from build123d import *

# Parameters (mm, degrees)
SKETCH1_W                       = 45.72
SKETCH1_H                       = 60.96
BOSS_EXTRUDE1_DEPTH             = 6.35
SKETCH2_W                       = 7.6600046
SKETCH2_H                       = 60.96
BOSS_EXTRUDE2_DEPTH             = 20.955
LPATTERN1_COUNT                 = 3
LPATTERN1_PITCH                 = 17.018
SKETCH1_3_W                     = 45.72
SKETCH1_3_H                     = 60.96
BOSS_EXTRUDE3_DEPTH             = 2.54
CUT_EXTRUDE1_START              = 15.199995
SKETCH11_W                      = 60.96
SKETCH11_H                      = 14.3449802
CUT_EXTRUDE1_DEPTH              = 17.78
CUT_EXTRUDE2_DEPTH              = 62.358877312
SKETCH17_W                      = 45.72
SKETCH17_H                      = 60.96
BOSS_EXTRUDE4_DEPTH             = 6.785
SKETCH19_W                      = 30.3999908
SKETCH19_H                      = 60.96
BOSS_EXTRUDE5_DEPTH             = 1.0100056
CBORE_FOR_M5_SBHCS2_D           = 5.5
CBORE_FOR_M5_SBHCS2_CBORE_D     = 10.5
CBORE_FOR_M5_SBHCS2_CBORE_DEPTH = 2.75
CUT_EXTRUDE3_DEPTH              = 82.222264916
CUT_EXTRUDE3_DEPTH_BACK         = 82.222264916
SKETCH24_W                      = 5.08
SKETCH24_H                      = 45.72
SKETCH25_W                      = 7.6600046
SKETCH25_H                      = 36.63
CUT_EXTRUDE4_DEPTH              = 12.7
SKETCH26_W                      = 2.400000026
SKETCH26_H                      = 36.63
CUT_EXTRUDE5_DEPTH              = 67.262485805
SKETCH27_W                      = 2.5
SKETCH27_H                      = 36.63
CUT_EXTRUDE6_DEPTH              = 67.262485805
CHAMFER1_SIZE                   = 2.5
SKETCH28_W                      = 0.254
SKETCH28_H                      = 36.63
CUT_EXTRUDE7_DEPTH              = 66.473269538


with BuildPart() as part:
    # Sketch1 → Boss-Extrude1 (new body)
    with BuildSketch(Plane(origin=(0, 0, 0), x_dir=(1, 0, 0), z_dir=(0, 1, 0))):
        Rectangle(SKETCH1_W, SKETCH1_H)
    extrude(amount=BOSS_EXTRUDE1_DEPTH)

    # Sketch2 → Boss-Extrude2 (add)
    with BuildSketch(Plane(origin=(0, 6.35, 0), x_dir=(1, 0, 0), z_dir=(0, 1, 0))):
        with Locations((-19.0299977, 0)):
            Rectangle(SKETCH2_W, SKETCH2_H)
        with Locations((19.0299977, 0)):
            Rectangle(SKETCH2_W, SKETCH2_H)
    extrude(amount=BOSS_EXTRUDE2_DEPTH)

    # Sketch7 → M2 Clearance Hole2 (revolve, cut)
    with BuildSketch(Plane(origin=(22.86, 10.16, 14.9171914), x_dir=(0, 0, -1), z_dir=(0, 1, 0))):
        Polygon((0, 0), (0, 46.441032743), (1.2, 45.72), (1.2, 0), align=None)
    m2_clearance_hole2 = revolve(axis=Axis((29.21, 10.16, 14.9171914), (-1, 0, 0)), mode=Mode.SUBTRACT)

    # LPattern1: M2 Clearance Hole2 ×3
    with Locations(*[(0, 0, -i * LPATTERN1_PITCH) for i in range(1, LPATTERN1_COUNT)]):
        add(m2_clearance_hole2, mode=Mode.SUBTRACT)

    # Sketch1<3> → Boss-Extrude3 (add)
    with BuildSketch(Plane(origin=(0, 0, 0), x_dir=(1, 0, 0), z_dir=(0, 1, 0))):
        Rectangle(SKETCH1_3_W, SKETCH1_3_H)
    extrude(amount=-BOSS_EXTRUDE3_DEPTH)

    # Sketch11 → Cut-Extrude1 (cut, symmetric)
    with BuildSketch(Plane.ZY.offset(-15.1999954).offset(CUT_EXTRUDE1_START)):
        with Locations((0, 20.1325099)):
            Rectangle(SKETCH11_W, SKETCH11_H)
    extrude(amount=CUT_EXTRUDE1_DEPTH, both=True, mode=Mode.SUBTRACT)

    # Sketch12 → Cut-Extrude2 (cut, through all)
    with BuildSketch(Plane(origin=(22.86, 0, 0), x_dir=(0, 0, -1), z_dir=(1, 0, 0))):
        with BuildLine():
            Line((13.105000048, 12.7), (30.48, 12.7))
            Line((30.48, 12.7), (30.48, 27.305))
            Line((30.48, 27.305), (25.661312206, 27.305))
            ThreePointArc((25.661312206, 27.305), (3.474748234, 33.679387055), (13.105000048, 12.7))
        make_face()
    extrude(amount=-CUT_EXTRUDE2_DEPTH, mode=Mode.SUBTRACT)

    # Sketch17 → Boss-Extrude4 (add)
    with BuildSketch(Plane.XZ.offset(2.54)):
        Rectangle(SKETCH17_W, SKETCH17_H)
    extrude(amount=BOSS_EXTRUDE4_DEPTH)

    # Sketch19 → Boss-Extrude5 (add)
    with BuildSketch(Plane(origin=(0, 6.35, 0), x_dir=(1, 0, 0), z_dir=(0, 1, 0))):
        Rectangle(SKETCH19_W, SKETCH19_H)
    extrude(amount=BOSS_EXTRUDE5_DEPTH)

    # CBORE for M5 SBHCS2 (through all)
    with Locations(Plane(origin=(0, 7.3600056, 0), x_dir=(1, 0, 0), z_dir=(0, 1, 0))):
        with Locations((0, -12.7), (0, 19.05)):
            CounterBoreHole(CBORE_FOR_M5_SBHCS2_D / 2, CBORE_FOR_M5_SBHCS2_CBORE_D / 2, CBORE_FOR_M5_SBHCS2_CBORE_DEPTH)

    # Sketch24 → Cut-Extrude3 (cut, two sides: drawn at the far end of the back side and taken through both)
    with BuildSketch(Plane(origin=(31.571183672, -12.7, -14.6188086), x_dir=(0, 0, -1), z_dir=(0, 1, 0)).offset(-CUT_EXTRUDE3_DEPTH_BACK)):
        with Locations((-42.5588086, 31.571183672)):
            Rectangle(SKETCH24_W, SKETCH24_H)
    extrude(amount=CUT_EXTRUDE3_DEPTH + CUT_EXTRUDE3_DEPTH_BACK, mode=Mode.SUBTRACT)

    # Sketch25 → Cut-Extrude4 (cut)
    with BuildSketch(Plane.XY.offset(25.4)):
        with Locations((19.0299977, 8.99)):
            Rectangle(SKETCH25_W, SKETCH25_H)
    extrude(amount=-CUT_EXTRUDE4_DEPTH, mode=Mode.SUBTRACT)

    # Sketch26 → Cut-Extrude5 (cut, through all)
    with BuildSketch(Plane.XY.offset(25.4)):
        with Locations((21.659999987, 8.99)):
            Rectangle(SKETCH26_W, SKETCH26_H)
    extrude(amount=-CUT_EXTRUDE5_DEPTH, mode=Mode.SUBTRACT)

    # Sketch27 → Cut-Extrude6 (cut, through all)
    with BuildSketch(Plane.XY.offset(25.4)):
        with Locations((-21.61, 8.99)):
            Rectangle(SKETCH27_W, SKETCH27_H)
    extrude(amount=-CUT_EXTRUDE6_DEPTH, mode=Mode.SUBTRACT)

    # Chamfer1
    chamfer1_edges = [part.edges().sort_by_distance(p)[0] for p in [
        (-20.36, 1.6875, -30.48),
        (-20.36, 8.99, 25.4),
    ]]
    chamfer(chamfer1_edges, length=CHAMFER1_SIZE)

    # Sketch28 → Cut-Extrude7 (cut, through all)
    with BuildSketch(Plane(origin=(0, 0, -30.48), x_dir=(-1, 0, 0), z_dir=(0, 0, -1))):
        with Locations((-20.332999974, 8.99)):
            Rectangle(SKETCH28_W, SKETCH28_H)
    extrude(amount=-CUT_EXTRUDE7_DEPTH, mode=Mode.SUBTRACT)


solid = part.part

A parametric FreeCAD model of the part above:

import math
import FreeCAD as App
import Part
import Sketcher
from FreeCAD import Vector
Q = App.Units.Quantity


def edges_at(feature, points):
    """Names of the edges that pass closest to the given points."""
    edges = feature.Shape.Edges
    near = lambda p: min(range(len(edges)), key=lambda i: edges[i].distToShape(Part.Vertex(*p))[0])
    return sorted({f"Edge{near(p) + 1}" for p in points})


def add_polygon(sketch, points):
    """Adds a closed chain of lines whose ends are joined by coincident constraints."""
    first, n = sketch.GeometryCount, len(points)
    for a, b in zip(points, points[1:] + points[:1]):
        sketch.addGeometry(Part.LineSegment(App.Vector(*a, 0), App.Vector(*b, 0)), False)
    for i in range(n):
        sketch.addConstraint(Sketcher.Constraint("Coincident", first + i, 2, first + (i + 1) % n, 1))

doc = App.newDocument("Part")
params = doc.addObject("Spreadsheet::Sheet", "Params")
for row, (alias, value) in enumerate([
    ("sketch1_width", "1.8 in"),
    ("sketch1_height", "2.4 in"),
    ("pad1_length", "0.25 in"),
    ("sketch2_height", "2.4 in"),
    ("pad2_length", "0.825 in"),
    ("sketch3_width", "1.8 in"),
    ("groove_angle", "360 deg"),
    ("linearpattern_pitch", "0.67 in"),
    ("sketch4_width", "1.8 in"),
    ("sketch4_height", "2.4 in"),
    ("pad3_length", "0.1 in"),
    ("sketch5_height", "2.4 in"),
    ("pocket1_length", "1.4 in"),
    ("sketch6_radius", "0.5 in"),
    ("sketch6_width", "0.575 in"),
    ("sketch7_width", "1.8 in"),
    ("sketch7_height", "2.4 in"),
    ("pad4_length", "6.785 mm"),
    ("sketch8_height", "2.4 in"),
    ("pad5_length", "1.010006 mm"),
    ("hole_diameter", "5.5 mm"),
    ("hole_cbore_diameter", "10.5 mm"),
    ("hole_cbore_depth", "2.75 mm"),
    ("sketch10_width", "1.8 in"),
    ("sketch10_height", "0.2 in"),
    ("pocket4_length", "0.5 in"),
    ("chamfer_size", "2.5 mm"),
    ("sketch14_width", "0.01 in"),
], start=1):
    params.set(f"A{row}", alias)
    params.set(f"B{row}", "=" + value)
    params.setAlias(f"B{row}", alias)

body = doc.addObject("PartDesign::Body", "Body")

sketch1 = body.newObject("Sketcher::SketchObject", "Sketch")
sketch1.AttachmentSupport = (doc.getObject("XZ_Plane"), [""])
sketch1.MapMode = "FlatFace"
add_polygon(sketch1, [(-23, -30), (-23, 30), (23, 30), (23, -30)])
sketch1.addConstraint(Sketcher.Constraint("Vertical", 0))
sketch1.addConstraint(Sketcher.Constraint("Horizontal", 1))
sketch1.addConstraint(Sketcher.Constraint("Vertical", 2))
sketch1.addConstraint(Sketcher.Constraint("Horizontal", 3))
sketch1.addConstraint(Sketcher.Constraint("Symmetric", 0, 2, 2, 2, -1, 1))
sketch1.addConstraint(Sketcher.Constraint("DistanceX", 1, 1, 1, 2, Q("1.8 in")))
sketch1.addConstraint(Sketcher.Constraint("DistanceY", 0, 1, 0, 2, Q("2.4 in")))
sketch1.setExpression("Constraints[9]", "Params.sketch1_width")
sketch1.setExpression("Constraints[10]", "Params.sketch1_height")
pad1 = body.newObject("PartDesign::Pad", "Pad")
pad1.Profile = sketch1
pad1.setExpression("Length", "Params.pad1_length")
pad1.Reversed = True

sketch2 = body.newObject("Sketcher::SketchObject", "Sketch001")
sketch2.AttachmentSupport = (doc.getObject("XZ_Plane"), [""])
sketch2.MapMode = "FlatFace"
sketch2.AttachmentOffset = App.Placement(Vector(0, 0, -0.25 * 25.4), App.Rotation())
add_polygon(sketch2, [(-23, -30), (-23, 30), (-15, 30), (-15, -30)])
add_polygon(sketch2, [(15, -30), (15, 30), (23, 30), (23, -30)])
sketch2.addConstraint(Sketcher.Constraint("Vertical", 0))
sketch2.addConstraint(Sketcher.Constraint("Horizontal", 1))
sketch2.addConstraint(Sketcher.Constraint("Vertical", 2))
sketch2.addConstraint(Sketcher.Constraint("Horizontal", 3))
sketch2.addConstraint(Sketcher.Constraint("Vertical", 4))
sketch2.addConstraint(Sketcher.Constraint("Horizontal", 5))
sketch2.addConstraint(Sketcher.Constraint("Vertical", 6))
sketch2.addConstraint(Sketcher.Constraint("Horizontal", 7))
sketch2.addConstraint(Sketcher.Constraint("Symmetric", 2, 2, 4, 2, -1, 1))
sketch2.addConstraint(Sketcher.Constraint("Symmetric", 0, 2, 6, 2, -1, 1))
sketch2.addConstraint(Sketcher.Constraint("Horizontal", 1, 2, 4, 2))
sketch2.addConstraint(Sketcher.Constraint("DistanceY", 0, 1, 0, 2, Q("2.4 in")))
sketch2.addConstraint(Sketcher.Constraint("DistanceX", 0, 2, -1, 1, Q("0.9 in")))
sketch2.addConstraint(Sketcher.Constraint("DistanceX", 1, 1, 1, 2, 7.660005))
sketch2.setExpression("Constraints[19]", "Params.sketch2_height")
pad2 = body.newObject("PartDesign::Pad", "Pad001")
pad2.Profile = sketch2
pad2.setExpression("Length", "Params.pad2_length")
pad2.Reversed = True

sketch3 = body.newObject("Sketcher::SketchObject", "Sketch002")
sketch3.AttachmentSupport = (doc.getObject("XZ_Plane"), [""])
sketch3.MapMode = "FlatFace"
sketch3.AttachmentOffset = App.Placement(Vector(0, 0, -0.4 * 25.4), App.Rotation())
add_polygon(sketch3, [(-23.6, 14.9), (22.9, 14.9), (22.9, 13.7), (-22.9, 13.7)])
sketch3.addGeometry(Part.LineSegment(Vector(22.9, 14.9, 0), Vector(-23.6, 14.9, 0)), True)
sketch3.addConstraint(Sketcher.Constraint("Horizontal", 0))
sketch3.addConstraint(Sketcher.Constraint("Vertical", 1))
sketch3.addConstraint(Sketcher.Constraint("Horizontal", 2))
sketch3.addConstraint(Sketcher.Constraint("Horizontal", 4))
sketch3.addConstraint(Sketcher.Constraint("Coincident", 4, 1, 0, 2))
sketch3.addConstraint(Sketcher.Constraint("Equal", 0, 4))
sketch3.addConstraint(Sketcher.Constraint("DistanceX", 2, 2, 2, 1, Q("1.8 in")))
sketch3.addConstraint(Sketcher.Constraint("Angle", 3, Q("121 deg")))
sketch3.addConstraint(Sketcher.Constraint("DistanceX", -1, 1, 0, 2, Q("0.9 in")))
sketch3.addConstraint(Sketcher.Constraint("DistanceY", 1, 2, 1, 1, 1.2))
sketch3.addConstraint(Sketcher.Constraint("DistanceY", -1, 1, 0, 2, 14.917191))
sketch3.setExpression("Constraints[10]", "Params.sketch3_width")
groove = body.newObject("PartDesign::Groove", "Groove")
groove.Profile = sketch3
groove.ReferenceAxis = (sketch3, ["Axis0"])
groove.setExpression("Angle", "Params.groove_angle")
doc.recompute()

linearpattern = body.newObject("PartDesign::LinearPattern", "LinearPattern")
linearpattern.Originals = [groove]
linearpattern.Direction = (doc.getObject("Z_Axis"), [""])
linearpattern.Mode = "offset"
linearpattern.setExpression("Offset", "Params.linearpattern_pitch")
linearpattern.Occurrences = 3
linearpattern.Reversed = True
body.Tip = linearpattern

sketch4 = body.newObject("Sketcher::SketchObject", "Sketch003")
sketch4.AttachmentSupport = (doc.getObject("XZ_Plane"), [""])
sketch4.MapMode = "FlatFace"
add_polygon(sketch4, [(-23, -30), (-23, 30), (23, 30), (23, -30)])
sketch4.addConstraint(Sketcher.Constraint("Vertical", 0))
sketch4.addConstraint(Sketcher.Constraint("Horizontal", 1))
sketch4.addConstraint(Sketcher.Constraint("Vertical", 2))
sketch4.addConstraint(Sketcher.Constraint("Horizontal", 3))
sketch4.addConstraint(Sketcher.Constraint("Symmetric", 0, 2, 2, 2, -1, 1))
sketch4.addConstraint(Sketcher.Constraint("DistanceX", 1, 1, 1, 2, Q("1.8 in")))
sketch4.addConstraint(Sketcher.Constraint("DistanceY", 0, 1, 0, 2, Q("2.4 in")))
sketch4.setExpression("Constraints[9]", "Params.sketch4_width")
sketch4.setExpression("Constraints[10]", "Params.sketch4_height")
pad3 = body.newObject("PartDesign::Pad", "Pad002")
pad3.Profile = sketch4
pad3.setExpression("Length", "Params.pad3_length")

sketch5 = body.newObject("Sketcher::SketchObject", "Sketch004")
sketch5.AttachmentSupport = (doc.getObject("YZ_Plane"), [""])
sketch5.MapMode = "FlatFace"
sketch5.AttachmentOffset = App.Placement(Vector(0, 0, 0 * 25.4), App.Rotation())
add_polygon(sketch5, [(27, -30), (13, -30), (13, 30), (27, 30)])
sketch5.addConstraint(Sketcher.Constraint("Horizontal", 0))
sketch5.addConstraint(Sketcher.Constraint("Vertical", 1))
sketch5.addConstraint(Sketcher.Constraint("Horizontal", 2))
sketch5.addConstraint(Sketcher.Constraint("Vertical", 3))
sketch5.addConstraint(Sketcher.Constraint("DistanceY", 1, 1, 1, 2, Q("2.4 in")))
sketch5.addConstraint(Sketcher.Constraint("DistanceY", 0, 2, -1, 1, Q("1.2 in")))
sketch5.addConstraint(Sketcher.Constraint("DistanceX", -1, 1, 2, 2, Q("1.075 in")))
sketch5.addConstraint(Sketcher.Constraint("DistanceX", 0, 2, 0, 1, 14.34498))
sketch5.setExpression("Constraints[8]", "Params.sketch5_height")
pocket1 = body.newObject("PartDesign::Pocket", "Pocket")
pocket1.Profile = sketch5
pocket1.setExpression("Length", "Params.pocket1_length")
pocket1.Midplane = True

sketch6 = body.newObject("Sketcher::SketchObject", "Sketch005")
sketch6.AttachmentSupport = (doc.getObject("YZ_Plane"), [""])
sketch6.MapMode = "FlatFace"
sketch6.AttachmentOffset = App.Placement(Vector(0, 0, 0.9 * 25.4), App.Rotation())
sketch6.addGeometry(Part.LineSegment(Vector(12.7, -13.1, 0), Vector(12.7, -30.5, 0)), False)
sketch6.addGeometry(Part.LineSegment(Vector(12.7, -30.5, 0), Vector(27.3, -30.5, 0)), False)
sketch6.addGeometry(Part.LineSegment(Vector(27.3, -30.5, 0), Vector(27.3, -25.7, 0)), False)
sketch6.addGeometry(Part.ArcOfCircle(Part.Circle(Vector(25.4, -13.1, 0), Vector(0, 0, 1), 12.7), math.radians(-81), math.radians(180)), False)
sketch6.addConstraint(Sketcher.Constraint("Coincident", 0, 2, 1, 1))
sketch6.addConstraint(Sketcher.Constraint("Coincident", 1, 2, 2, 1))
sketch6.addConstraint(Sketcher.Constraint("Coincident", 2, 2, 3, 1))
sketch6.addConstraint(Sketcher.Constraint("Tangent", 3, 2, 0, 1))
sketch6.addConstraint(Sketcher.Constraint("Vertical", 0))
sketch6.addConstraint(Sketcher.Constraint("Horizontal", 1))
sketch6.addConstraint(Sketcher.Constraint("Vertical", 2))
sketch6.addConstraint(Sketcher.Constraint("Radius", 3, Q("0.5 in")))
sketch6.addConstraint(Sketcher.Constraint("DistanceX", -1, 1, 3, 3, Q("1 in")))
sketch6.addConstraint(Sketcher.Constraint("DistanceY", 0, 2, -1, 1, Q("1.2 in")))
sketch6.addConstraint(Sketcher.Constraint("DistanceX", 1, 1, 1, 2, Q("0.575 in")))
sketch6.addConstraint(Sketcher.Constraint("DistanceY", 0, 2, 0, 1, 17.375))
sketch6.setExpression("Constraints[7]", "Params.sketch6_radius")
sketch6.setExpression("Constraints[10]", "Params.sketch6_width")
pocket2 = body.newObject("PartDesign::Pocket", "Pocket001")
pocket2.Profile = sketch6
pocket2.Type = "ThroughAll"

sketch7 = body.newObject("Sketcher::SketchObject", "Sketch006")
sketch7.AttachmentSupport = (doc.getObject("XZ_Plane"), [""])
sketch7.MapMode = "FlatFace"
sketch7.AttachmentOffset = App.Placement(Vector(0, 0, 0.1 * 25.4), App.Rotation())
add_polygon(sketch7, [(-23, 30), (-23, -30), (23, -30), (23, 30)])
sketch7.addConstraint(Sketcher.Constraint("Vertical", 0))
sketch7.addConstraint(Sketcher.Constraint("Horizontal", 1))
sketch7.addConstraint(Sketcher.Constraint("Vertical", 2))
sketch7.addConstraint(Sketcher.Constraint("Horizontal", 3))
sketch7.addConstraint(Sketcher.Constraint("Symmetric", 0, 2, 2, 2, -1, 1))
sketch7.addConstraint(Sketcher.Constraint("DistanceX", 1, 1, 1, 2, Q("1.8 in")))
sketch7.addConstraint(Sketcher.Constraint("DistanceY", 0, 2, 0, 1, Q("2.4 in")))
sketch7.setExpression("Constraints[9]", "Params.sketch7_width")
sketch7.setExpression("Constraints[10]", "Params.sketch7_height")
pad4 = body.newObject("PartDesign::Pad", "Pad003")
pad4.Profile = sketch7
pad4.setExpression("Length", "Params.pad4_length")

sketch8 = body.newObject("Sketcher::SketchObject", "Sketch007")
sketch8.AttachmentSupport = (doc.getObject("XZ_Plane"), [""])
sketch8.MapMode = "FlatFace"
sketch8.AttachmentOffset = App.Placement(Vector(0, 0, -0.25 * 25.4), App.Rotation())
add_polygon(sketch8, [(-15, -30), (-15, 30), (15, 30), (15, -30)])
sketch8.addConstraint(Sketcher.Constraint("Vertical", 0))
sketch8.addConstraint(Sketcher.Constraint("Horizontal", 1))
sketch8.addConstraint(Sketcher.Constraint("Vertical", 2))
sketch8.addConstraint(Sketcher.Constraint("Horizontal", 3))
sketch8.addConstraint(Sketcher.Constraint("Symmetric", 0, 2, 2, 2, -1, 1))
sketch8.addConstraint(Sketcher.Constraint("DistanceY", 0, 1, 0, 2, Q("2.4 in")))
sketch8.addConstraint(Sketcher.Constraint("DistanceX", 1, 1, 1, 2, 30.399991))
sketch8.setExpression("Constraints[9]", "Params.sketch8_height")
pad5 = body.newObject("PartDesign::Pad", "Pad004")
pad5.Profile = sketch8
pad5.setExpression("Length", "Params.pad5_length")
pad5.Reversed = True

sketch9 = body.newObject("Sketcher::SketchObject", "Sketch008")
sketch9.AttachmentSupport = (doc.getObject("XZ_Plane"), [""])
sketch9.MapMode = "FlatFace"
sketch9.AttachmentOffset = App.Placement(Vector(0, 0, -7.360006), App.Rotation())
sketch9.addGeometry(Part.Circle(Vector(0, 12.7, 0), Vector(0, 0, 1), 2.8), False)
sketch9.addGeometry(Part.Circle(Vector(0, -19.1, 0), Vector(0, 0, 1), 2.8), False)
sketch9.addConstraint(Sketcher.Constraint("Equal", 0, 1))
sketch9.addConstraint(Sketcher.Constraint("PointOnObject", 0, 3, -2))
sketch9.addConstraint(Sketcher.Constraint("PointOnObject", 1, 3, -2))
sketch9.addConstraint(Sketcher.Constraint("DistanceY", -1, 1, 0, 3, Q("0.5 in")))
sketch9.addConstraint(Sketcher.Constraint("Diameter", 0, 5.5))
sketch9.addConstraint(Sketcher.Constraint("DistanceY", 1, 3, -1, 1, Q("0.75 in")))
doc.recompute()
hole = body.newObject("PartDesign::Hole", "Hole")
hole.Profile = sketch9
hole.ThreadType = "None"
hole.setExpression("Diameter", "Params.hole_diameter")
hole.DepthType = "ThroughAll"
hole.HoleCutType = "Counterbore"
hole.setExpression("HoleCutDiameter", "Params.hole_cbore_diameter")
hole.setExpression("HoleCutDepth", "Params.hole_cbore_depth")
hole.Reversed = True

sketch10 = body.newObject("Sketcher::SketchObject", "Sketch009")
sketch10.AttachmentSupport = (doc.getObject("XZ_Plane"), [""])
sketch10.MapMode = "FlatFace"
sketch10.AttachmentOffset = App.Placement(Vector(0, 0, 0.5 * 25.4), App.Rotation())
add_polygon(sketch10, [(-23, 30), (23, 30), (23, 25), (-23, 25)])
sketch10.addConstraint(Sketcher.Constraint("Horizontal", 0))
sketch10.addConstraint(Sketcher.Constraint("Vertical", 1))
sketch10.addConstraint(Sketcher.Constraint("Horizontal", 2))
sketch10.addConstraint(Sketcher.Constraint("Vertical", 3))
sketch10.addConstraint(Sketcher.Constraint("DistanceX", 0, 1, 0, 2, Q("1.8 in")))
sketch10.addConstraint(Sketcher.Constraint("DistanceY", 1, 2, 1, 1, Q("0.2 in")))
sketch10.addConstraint(Sketcher.Constraint("DistanceY", -1, 1, 1, 2, Q("1 in")))
sketch10.addConstraint(Sketcher.Constraint("DistanceX", -1, 1, 0, 2, Q("0.9 in")))
sketch10.setExpression("Constraints[8]", "Params.sketch10_width")
sketch10.setExpression("Constraints[9]", "Params.sketch10_height")
pocket3 = body.newObject("PartDesign::Pocket", "Pocket002")
pocket3.Profile = sketch10
pocket3.Type = "ThroughAll"
pocket3.Midplane = True

sketch11 = body.newObject("Sketcher::SketchObject", "Sketch010")
sketch11.AttachmentSupport = (doc.getObject("XY_Plane"), [""])
sketch11.MapMode = "FlatFace"
sketch11.AttachmentOffset = App.Placement(Vector(0, 0, 1 * 25.4), App.Rotation())
add_polygon(sketch11, [(15, 27), (15, -9), (23, -9), (23, 27)])
sketch11.addConstraint(Sketcher.Constraint("Vertical", 0))
sketch11.addConstraint(Sketcher.Constraint("Horizontal", 1))
sketch11.addConstraint(Sketcher.Constraint("Vertical", 2))
sketch11.addConstraint(Sketcher.Constraint("Horizontal", 3))
sketch11.addConstraint(Sketcher.Constraint("DistanceX", -1, 1, 1, 2, Q("0.9 in")))
sketch11.addConstraint(Sketcher.Constraint("DistanceY", -1, 1, 2, 2, Q("1.075 in")))
sketch11.addConstraint(Sketcher.Constraint("DistanceY", 0, 2, 0, 1, 36.63))
sketch11.addConstraint(Sketcher.Constraint("DistanceX", 1, 1, 1, 2, 7.660005))
pocket4 = body.newObject("PartDesign::Pocket", "Pocket003")
pocket4.Profile = sketch11
pocket4.setExpression("Length", "Params.pocket4_length")

sketch12 = body.newObject("Sketcher::SketchObject", "Sketch011")
sketch12.AttachmentSupport = (doc.getObject("XY_Plane"), [""])
sketch12.MapMode = "FlatFace"
sketch12.AttachmentOffset = App.Placement(Vector(0, 0, 1 * 25.4), App.Rotation())
add_polygon(sketch12, [(20.5, 27.3), (20.5, -9.3), (22.9, -9.3), (22.9, 27.3)])
sketch12.addConstraint(Sketcher.Constraint("Vertical", 0))
sketch12.addConstraint(Sketcher.Constraint("Horizontal", 1))
sketch12.addConstraint(Sketcher.Constraint("Vertical", 2))
sketch12.addConstraint(Sketcher.Constraint("Horizontal", 3))
sketch12.addConstraint(Sketcher.Constraint("DistanceX", -1, 1, 1, 2, Q("0.9 in")))
sketch12.addConstraint(Sketcher.Constraint("DistanceY", -1, 1, 2, 2, Q("1.075 in")))
sketch12.addConstraint(Sketcher.Constraint("DistanceX", 1, 1, 1, 2, 2.4))
sketch12.addConstraint(Sketcher.Constraint("DistanceY", 0, 2, 0, 1, 36.63))
pocket5 = body.newObject("PartDesign::Pocket", "Pocket004")
pocket5.Profile = sketch12
pocket5.Type = "ThroughAll"

sketch13 = body.newObject("Sketcher::SketchObject", "Sketch012")
sketch13.AttachmentSupport = (doc.getObject("XY_Plane"), [""])
sketch13.MapMode = "FlatFace"
sketch13.AttachmentOffset = App.Placement(Vector(0, 0, 1 * 25.4), App.Rotation())
add_polygon(sketch13, [(-22.9, 27.3), (-22.9, -9.3), (-20.4, -9.3), (-20.4, 27.3)])
sketch13.addConstraint(Sketcher.Constraint("Vertical", 0))
sketch13.addConstraint(Sketcher.Constraint("Horizontal", 1))
sketch13.addConstraint(Sketcher.Constraint("Vertical", 2))
sketch13.addConstraint(Sketcher.Constraint("Horizontal", 3))
sketch13.addConstraint(Sketcher.Constraint("DistanceX", 0, 2, -1, 1, Q("0.9 in")))
sketch13.addConstraint(Sketcher.Constraint("DistanceY", -1, 1, 2, 2, Q("1.075 in")))
sketch13.addConstraint(Sketcher.Constraint("DistanceX", 1, 1, 1, 2, 2.5))
sketch13.addConstraint(Sketcher.Constraint("DistanceY", 0, 2, 0, 1, 36.63))
pocket6 = body.newObject("PartDesign::Pocket", "Pocket005")
pocket6.Profile = sketch13
pocket6.Type = "ThroughAll"
doc.recompute()

chamfer = body.newObject("PartDesign::Chamfer", "Chamfer")
chamfer.Base = (pocket6, edges_at(pocket6, [(-20.36, 1.688, -30.48), (-20.36, 8.99, 25.4)]))
chamfer.setExpression("Size", "Params.chamfer_size")

sketch14 = body.newObject("Sketcher::SketchObject", "Sketch013")
sketch14.AttachmentSupport = (doc.getObject("XY_Plane"), [""])
sketch14.MapMode = "FlatFace"
sketch14.AttachmentOffset = App.Placement(Vector(0, 0, -1.2 * 25.4), App.Rotation())
add_polygon(sketch14, [(20.46, 27.3), (20.46, -9.32), (20.21, -9.32), (20.21, 27.3)])
sketch14.addConstraint(Sketcher.Constraint("Vertical", 0))
sketch14.addConstraint(Sketcher.Constraint("Horizontal", 1))
sketch14.addConstraint(Sketcher.Constraint("Vertical", 2))
sketch14.addConstraint(Sketcher.Constraint("Horizontal", 3))
sketch14.addConstraint(Sketcher.Constraint("DistanceX", 1, 2, 1, 1, Q("0.01 in")))
sketch14.addConstraint(Sketcher.Constraint("DistanceY", -1, 1, 2, 2, Q("1.075 in")))
sketch14.addConstraint(Sketcher.Constraint("DistanceY", 0, 2, 0, 1, 36.63))
sketch14.addConstraint(Sketcher.Constraint("DistanceX", -1, 1, 0, 2, 20.46))
sketch14.setExpression("Constraints[8]", "Params.sketch14_width")
pocket7 = body.newObject("PartDesign::Pocket", "Pocket006")
pocket7.Profile = sketch14
pocket7.Type = "ThroughAll"
pocket7.Reversed = True

doc.recompute()
